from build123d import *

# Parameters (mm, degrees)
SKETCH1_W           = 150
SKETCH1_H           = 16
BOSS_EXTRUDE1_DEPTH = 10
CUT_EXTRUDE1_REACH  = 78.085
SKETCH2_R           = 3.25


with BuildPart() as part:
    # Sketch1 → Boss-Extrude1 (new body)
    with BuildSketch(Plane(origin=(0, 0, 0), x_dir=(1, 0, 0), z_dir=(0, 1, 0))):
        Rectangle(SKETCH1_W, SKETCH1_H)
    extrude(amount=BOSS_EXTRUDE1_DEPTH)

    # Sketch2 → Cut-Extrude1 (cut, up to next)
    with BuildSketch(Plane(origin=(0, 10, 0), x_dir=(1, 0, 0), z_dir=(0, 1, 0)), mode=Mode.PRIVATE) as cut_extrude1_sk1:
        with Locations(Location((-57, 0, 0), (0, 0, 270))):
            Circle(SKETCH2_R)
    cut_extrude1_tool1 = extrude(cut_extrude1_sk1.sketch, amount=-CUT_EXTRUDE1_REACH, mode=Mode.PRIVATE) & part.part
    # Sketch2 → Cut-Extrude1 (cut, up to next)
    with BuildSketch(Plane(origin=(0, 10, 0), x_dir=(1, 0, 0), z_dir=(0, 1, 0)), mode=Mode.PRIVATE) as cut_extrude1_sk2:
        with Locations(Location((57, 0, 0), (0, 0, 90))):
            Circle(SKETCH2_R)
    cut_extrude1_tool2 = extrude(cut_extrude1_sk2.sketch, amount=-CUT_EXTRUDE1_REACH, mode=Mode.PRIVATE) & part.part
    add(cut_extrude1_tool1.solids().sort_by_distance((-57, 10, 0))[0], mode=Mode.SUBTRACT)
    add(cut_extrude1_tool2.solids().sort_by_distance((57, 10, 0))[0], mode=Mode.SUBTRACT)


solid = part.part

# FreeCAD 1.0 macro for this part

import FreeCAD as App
import Part
import Sketcher


def add_polygon(sketch, points):
    """Adds a closed chain of lines whose ends are joined by coincident constraints."""
    first, n = sketch.GeometryCount, len(points)
    for a, b in zip(points, points[1:] + points[:1]):
        sketch.addGeometry(Part.LineSegment(App.Vector(*a, 0), App.Vector(*b, 0)), False)
    for i in range(n):
        sketch.addConstraint(Sketcher.Constraint("Coincident", first + i, 2, first + (i + 1) % n, 1))

doc = App.newDocument("Part")
body = doc.addObject("PartDesign::Body", "Body")

sketch1 = body.newObject("Sketcher::SketchObject", "Sketch")
sketch1.AttachmentSupport = (doc.getObject("XZ_Plane"), [""])
sketch1.MapMode = "FlatFace"
add_polygon(sketch1, [(-75, -8), (-75, 8), (75, 8), (75, -8)])
sketch1.addConstraint(Sketcher.Constraint("Vertical", 0))
sketch1.addConstraint(Sketcher.Constraint("Horizontal", 1))
sketch1.addConstraint(Sketcher.Constraint("Vertical", 2))
sketch1.addConstraint(Sketcher.Constraint("Horizontal", 3))
sketch1.addConstraint(Sketcher.Constraint("Symmetric", 0, 2, 2, 2, -1, 1))
sketch1.addConstraint(Sketcher.Constraint("DistanceX", 1, 1, 1, 2, 150.0))
sketch1.addConstraint(Sketcher.Constraint("DistanceY", 0, 1, 0, 2, 16.0))
pad1 = body.newObject("PartDesign::Pad", "Pad")
pad1.Profile = sketch1
pad1.Length = 10
pad1.Reversed = True

sketch2 = body.newObject("Sketcher::SketchObject", "Sketch001")
sketch2.AttachmentSupport = (doc.getObject("XZ_Plane"), [""])
sketch2.MapMode = "FlatFace"
sketch2.AttachmentOffset = App.Placement(App.Vector(0, 0, -10), App.Rotation())
sketch2.addGeometry(Part.Circle(App.Vector(-57, 0, 0), App.Vector(0, 0, 1), 3.25), False)
sketch2.addConstraint(Sketcher.Constraint("PointOnObject", 0, 3, -1))
sketch2.addConstraint(Sketcher.Constraint("Diameter", 0, 6.5))
sketch2.addConstraint(Sketcher.Constraint("DistanceX", 0, 3, -1, 1, 57.0))
pocket1 = body.newObject("PartDesign::Pocket", "Pocket")
pocket1.Profile = sketch2
pocket1.Type = "UpToFirst"
pocket1.Reversed = True

sketch3 = body.newObject("Sketcher::SketchObject", "Sketch002")
sketch3.AttachmentSupport = (doc.getObject("XZ_Plane"), [""])
sketch3.MapMode = "FlatFace"
sketch3.AttachmentOffset = App.Placement(App.Vector(0, 0, -10), App.Rotation())
sketch3.addGeometry(Part.Circle(App.Vector(57, 0, 0), App.Vector(0, 0, 1), 3.25), False)
sketch3.addConstraint(Sketcher.Constraint("PointOnObject", 0, 3, -1))
sketch3.addConstraint(Sketcher.Constraint("Diameter", 0, 6.5))
sketch3.addConstraint(Sketcher.Constraint("DistanceX", -1, 1, 0, 3, 57.0))
pocket2 = body.newObject("PartDesign::Pocket", "Pocket001")
pocket2.Profile = sketch3
pocket2.Type = "UpToFirst"
pocket2.Reversed = True

doc.recompute()
